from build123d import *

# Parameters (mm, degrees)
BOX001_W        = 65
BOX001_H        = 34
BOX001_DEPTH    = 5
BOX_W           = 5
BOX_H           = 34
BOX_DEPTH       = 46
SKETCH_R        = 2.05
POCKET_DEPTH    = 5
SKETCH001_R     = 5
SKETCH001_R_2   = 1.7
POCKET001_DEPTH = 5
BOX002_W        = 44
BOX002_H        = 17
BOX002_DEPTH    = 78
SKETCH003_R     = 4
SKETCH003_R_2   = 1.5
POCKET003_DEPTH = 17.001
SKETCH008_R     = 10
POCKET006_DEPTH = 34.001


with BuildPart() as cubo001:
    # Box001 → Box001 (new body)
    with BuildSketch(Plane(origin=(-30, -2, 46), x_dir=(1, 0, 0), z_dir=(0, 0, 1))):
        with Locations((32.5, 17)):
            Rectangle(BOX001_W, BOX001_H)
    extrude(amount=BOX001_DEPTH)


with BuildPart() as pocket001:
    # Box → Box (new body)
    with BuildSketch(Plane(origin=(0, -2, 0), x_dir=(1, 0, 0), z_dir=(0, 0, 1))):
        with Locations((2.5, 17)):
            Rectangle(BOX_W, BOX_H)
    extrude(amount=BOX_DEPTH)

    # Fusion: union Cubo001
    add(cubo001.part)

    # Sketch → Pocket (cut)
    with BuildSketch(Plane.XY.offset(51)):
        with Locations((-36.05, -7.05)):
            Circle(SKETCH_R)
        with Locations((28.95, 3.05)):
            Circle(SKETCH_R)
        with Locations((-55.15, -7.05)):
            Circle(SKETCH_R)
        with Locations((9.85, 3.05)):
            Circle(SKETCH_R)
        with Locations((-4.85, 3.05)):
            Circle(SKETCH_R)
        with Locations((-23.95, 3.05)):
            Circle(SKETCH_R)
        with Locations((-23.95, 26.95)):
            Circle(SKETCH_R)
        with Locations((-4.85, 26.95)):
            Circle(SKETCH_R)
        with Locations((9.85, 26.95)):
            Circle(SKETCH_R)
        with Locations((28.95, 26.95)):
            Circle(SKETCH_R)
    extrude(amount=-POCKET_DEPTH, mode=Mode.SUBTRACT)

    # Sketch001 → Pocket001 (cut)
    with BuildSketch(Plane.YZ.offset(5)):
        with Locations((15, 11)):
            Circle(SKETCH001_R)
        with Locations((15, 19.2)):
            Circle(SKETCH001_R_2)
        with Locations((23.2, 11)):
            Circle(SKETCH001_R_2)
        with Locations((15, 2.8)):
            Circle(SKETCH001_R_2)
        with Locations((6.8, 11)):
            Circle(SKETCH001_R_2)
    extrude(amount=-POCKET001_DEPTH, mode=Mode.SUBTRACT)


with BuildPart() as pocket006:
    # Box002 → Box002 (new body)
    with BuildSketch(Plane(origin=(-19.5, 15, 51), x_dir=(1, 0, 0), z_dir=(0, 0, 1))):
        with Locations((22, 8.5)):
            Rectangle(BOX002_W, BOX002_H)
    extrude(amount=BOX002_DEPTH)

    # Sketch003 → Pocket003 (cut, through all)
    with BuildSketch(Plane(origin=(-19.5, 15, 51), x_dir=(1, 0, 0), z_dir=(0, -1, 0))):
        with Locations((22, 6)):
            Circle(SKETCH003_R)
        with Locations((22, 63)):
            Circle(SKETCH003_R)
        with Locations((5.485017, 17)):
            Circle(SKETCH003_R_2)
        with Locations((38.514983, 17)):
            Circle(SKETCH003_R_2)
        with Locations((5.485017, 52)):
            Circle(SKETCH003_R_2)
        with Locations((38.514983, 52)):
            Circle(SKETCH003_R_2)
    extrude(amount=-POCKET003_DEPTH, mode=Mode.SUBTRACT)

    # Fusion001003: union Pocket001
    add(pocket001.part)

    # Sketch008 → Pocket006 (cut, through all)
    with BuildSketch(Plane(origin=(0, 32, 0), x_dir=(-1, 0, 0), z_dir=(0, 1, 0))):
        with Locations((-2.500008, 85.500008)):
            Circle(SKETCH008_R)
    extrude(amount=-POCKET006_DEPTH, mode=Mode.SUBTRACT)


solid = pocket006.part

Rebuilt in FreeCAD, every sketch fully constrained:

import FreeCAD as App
import Part
import Sketcher
from FreeCAD import Vector

doc = App.newDocument("Part")
body = doc.addObject("PartDesign::Body", "Body")

# Sketch on XY plane
sketch1 = body.newObject("Sketcher::SketchObject", "Sketch")
sketch1.AttachmentSupport = (doc.getObject("XY_Plane"), [""])
sketch1.MapMode = "FlatFace"
sketch1.AttachmentOffset = App.Placement(Vector(0, 0, 46), App.Rotation())
sketch1.addGeometry(Part.LineSegment(Vector(-30, 32, 0), Vector(-30, -2, 0)), False)
sketch1.addGeometry(Part.LineSegment(Vector(-30, -2, 0), Vector(35, -2, 0)), False)
sketch1.addGeometry(Part.LineSegment(Vector(35, -2, 0), Vector(35, 32, 0)), False)
sketch1.addGeometry(Part.LineSegment(Vector(35, 32, 0), Vector(-30, 32, 0)), False)
sketch1.addConstraint(Sketcher.Constraint("Coincident", 0, 2, 1, 1))
sketch1.addConstraint(Sketcher.Constraint("Coincident", 1, 2, 2, 1))
sketch1.addConstraint(Sketcher.Constraint("Coincident", 2, 2, 3, 1))
sketch1.addConstraint(Sketcher.Constraint("Coincident", 3, 2, 0, 1))
sketch1.addConstraint(Sketcher.Constraint("Vertical", 0))
sketch1.addConstraint(Sketcher.Constraint("Horizontal", 1))
sketch1.addConstraint(Sketcher.Constraint("Vertical", 2))
sketch1.addConstraint(Sketcher.Constraint("Horizontal", 3))
sketch1.addConstraint(Sketcher.Constraint("DistanceX", 1, 1, 1, 2, 65.0))
sketch1.addConstraint(Sketcher.Constraint("DistanceY", 0, 2, 0, 1, 34.0))
sketch1.addConstraint(Sketcher.Constraint("DistanceX", 0, 2, -1, 1, 30.0))
sketch1.addConstraint(Sketcher.Constraint("DistanceY", 0, 2, -1, 1, 2.0))
pad1 = body.newObject("PartDesign::Pad", "Pad")
pad1.Profile = sketch1
pad1.Length = 5
body2 = doc.addObject("PartDesign::Body", "Body001")

# Sketch on XY plane
sketch2 = body2.newObject("Sketcher::SketchObject", "Sketch001")
sketch2.AttachmentSupport = (doc.getObject("XY_Plane001"), [""])
sketch2.MapMode = "FlatFace"
sketch2.addGeometry(Part.LineSegment(Vector(0, 32, 0), Vector(0, -2, 0)), False)
sketch2.addGeometry(Part.LineSegment(Vector(0, -2, 0), Vector(5, -2, 0)), False)
sketch2.addGeometry(Part.LineSegment(Vector(5, -2, 0), Vector(5, 32, 0)), False)
sketch2.addGeometry(Part.LineSegment(Vector(5, 32, 0), Vector(0, 32, 0)), False)
sketch2.addConstraint(Sketcher.Constraint("Coincident", 0, 2, 1, 1))
sketch2.addConstraint(Sketcher.Constraint("Coincident", 1, 2, 2, 1))
sketch2.addConstraint(Sketcher.Constraint("Coincident", 2, 2, 3, 1))
sketch2.addConstraint(Sketcher.Constraint("Coincident", 3, 2, 0, 1))
sketch2.addConstraint(Sketcher.Constraint("Vertical", 0))
sketch2.addConstraint(Sketcher.Constraint("Horizontal", 1))
sketch2.addConstraint(Sketcher.Constraint("Vertical", 2))
sketch2.addConstraint(Sketcher.Constraint("Horizontal", 3))
sketch2.addConstraint(Sketcher.Constraint("PointOnObject", 0, 2, -2))
sketch2.addConstraint(Sketcher.Constraint("DistanceX", 1, 1, 1, 2, 5.0))
sketch2.addConstraint(Sketcher.Constraint("DistanceY", 0, 2, 0, 1, 34.0))
sketch2.addConstraint(Sketcher.Constraint("DistanceY", 0, 2, -1, 1, 2.0))
pad2 = body2.newObject("PartDesign::Pad", "Pad001")
pad2.Profile = sketch2
pad2.Length = 46
doc.recompute()

boolean = body2.newObject("PartDesign::Boolean", "Boolean")
boolean.Type = "Fuse"
boolean.addObjects([body])

# Sketch on XY plane
sketch3 = body2.newObject("Sketcher::SketchObject", "Sketch002")
sketch3.AttachmentSupport = (doc.getObject("XY_Plane001"), [""])
sketch3.MapMode = "FlatFace"
sketch3.AttachmentOffset = App.Placement(Vector(0, 0, 51), App.Rotation())
sketch3.addGeometry(Part.Circle(Vector(-36, -7, 0), Vector(0, 0, 1), 2), False)
sketch3.addGeometry(Part.Circle(Vector(28.9, 3, 0), Vector(0, 0, 1), 2), False)
sketch3.addGeometry(Part.Circle(Vector(-55.1, -7, 0), Vector(0, 0, 1), 2), False)
sketch3.addGeometry(Part.Circle(Vector(9.8, 3, 0), Vector(0, 0, 1), 2), False)
sketch3.addGeometry(Part.Circle(Vector(-4.8, 3, 0), Vector(0, 0, 1), 2), False)
sketch3.addGeometry(Part.Circle(Vector(-23.9, 3, 0), Vector(0, 0, 1), 2), False)
sketch3.addGeometry(Part.Circle(Vector(-23.9, 26.9, 0), Vector(0, 0, 1), 2), False)
sketch3.addGeometry(Part.Circle(Vector(-4.8, 26.9, 0), Vector(0, 0, 1), 2), False)
sketch3.addGeometry(Part.Circle(Vector(9.8, 26.9, 0), Vector(0, 0, 1), 2), False)
sketch3.addGeometry(Part.Circle(Vector(28.9, 26.9, 0), Vector(0, 0, 1), 2), False)
sketch3.addConstraint(Sketcher.Constraint("Equal", 0, 1))
sketch3.addConstraint(Sketcher.Constraint("Equal", 1, 2))
sketch3.addConstraint(Sketcher.Constraint("Equal", 2, 3))
sketch3.addConstraint(Sketcher.Constraint("Equal", 3, 4))
sketch3.addConstraint(Sketcher.Constraint("Equal", 4, 5))
sketch3.addConstraint(Sketcher.Constraint("Equal", 5, 6))
sketch3.addConstraint(Sketcher.Constraint("Equal", 6, 7))
sketch3.addConstraint(Sketcher.Constraint("Equal", 7, 8))
sketch3.addConstraint(Sketcher.Constraint("Equal", 8, 9))
sketch3.addConstraint(Sketcher.Constraint("Horizontal", 0, 3, 2, 3))
sketch3.addConstraint(Sketcher.Constraint("Horizontal", 1, 3, 3, 3))
sketch3.addConstraint(Sketcher.Constraint("Horizontal", 3, 3, 4, 3))
sketch3.addConstraint(Sketcher.Constraint("Horizontal", 4, 3, 5, 3))
sketch3.addConstraint(Sketcher.Constraint("Horizontal", 6, 3, 7, 3))
sketch3.addConstraint(Sketcher.Constraint("Horizontal", 7, 3, 8, 3))
sketch3.addConstraint(Sketcher.Constraint("Horizontal", 8, 3, 9, 3))
sketch3.addConstraint(Sketcher.Constraint("Vertical", 5, 3, 6, 3))
sketch3.addConstraint(Sketcher.Constraint("Vertical", 4, 3, 7, 3))
sketch3.addConstraint(Sketcher.Constraint("Vertical", 3, 3, 8, 3))
sketch3.addConstraint(Sketcher.Constraint("Vertical", 1, 3, 9, 3))
sketch3.addConstraint(Sketcher.Constraint("Diameter", 0, 4.1))
sketch3.addConstraint(Sketcher.Constraint("DistanceX", 0, 3, 1, 3, 65.0))
sketch3.addConstraint(Sketcher.Constraint("DistanceX", 2, 3, 3, 3, 65.0))
sketch3.addConstraint(Sketcher.Constraint("DistanceY", 0, 3, 6, 3, 34.0))
sketch3.addConstraint(Sketcher.Constraint("DistanceY", 0, 3, 1, 3, 10.1))
sketch3.addConstraint(Sketcher.Constraint("DistanceX", 2, 3, 0, 3, 19.1))
sketch3.addConstraint(Sketcher.Constraint("DistanceX", 4, 3, 3, 3, 14.7))
sketch3.addConstraint(Sketcher.Constraint("DistanceX", 0, 3, 5, 3, 12.1))
sketch3.addConstraint(Sketcher.Constraint("DistanceX", 0, 3, -1, 1, 36.05))
sketch3.addConstraint(Sketcher.Constraint("DistanceY", 0, 3, -1, 1, 7.05))
pocket1 = body2.newObject("PartDesign::Pocket", "Pocket")
pocket1.Profile = sketch3
pocket1.Length = 5

# Sketch on YZ plane
sketch4 = body2.newObject("Sketcher::SketchObject", "Sketch003")
sketch4.AttachmentSupport = (doc.getObject("YZ_Plane001"), [""])
sketch4.MapMode = "FlatFace"
sketch4.AttachmentOffset = App.Placement(Vector(0, 0, 5), App.Rotation())
sketch4.addGeometry(Part.Circle(Vector(15, 11, 0), Vector(0, 0, 1), 5), False)
sketch4.addGeometry(Part.Circle(Vector(15, 19.2, 0), Vector(0, 0, 1), 1.7), False)
sketch4.addGeometry(Part.Circle(Vector(23.2, 11, 0), Vector(0, 0, 1), 1.7), False)
sketch4.addGeometry(Part.Circle(Vector(15, 2.8, 0), Vector(0, 0, 1), 1.7), False)
sketch4.addGeometry(Part.Circle(Vector(6.8, 11, 0), Vector(0, 0, 1), 1.7), False)
sketch4.addConstraint(Sketcher.Constraint("Equal", 1, 2))
sketch4.addConstraint(Sketcher.Constraint("Equal", 2, 3))
sketch4.addConstraint(Sketcher.Constraint("Equal", 3, 4))
sketch4.addConstraint(Sketcher.Constraint("Horizontal", 0, 3, 2, 3))
sketch4.addConstraint(Sketcher.Constraint("Horizontal", 2, 3, 4, 3))
sketch4.addConstraint(Sketcher.Constraint("Vertical", 0, 3, 1, 3))
sketch4.addConstraint(Sketcher.Constraint("Vertical", 1, 3, 3, 3))
sketch4.addConstraint(Sketcher.Constraint("Diameter", 0, 10.0))
sketch4.addConstraint(Sketcher.Constraint("Diameter", 1, 3.4))
sketch4.addConstraint(Sketcher.Constraint("DistanceX", -1, 1, 0, 3, 15.0))
sketch4.addConstraint(Sketcher.Constraint("DistanceY", -1, 1, 0, 3, 11.0))
sketch4.addConstraint(Sketcher.Constraint("DistanceY", -1, 1, 1, 3, 19.2))
sketch4.addConstraint(Sketcher.Constraint("DistanceX", -1, 1, 2, 3, 23.2))
sketch4.addConstraint(Sketcher.Constraint("DistanceY", -1, 1, 3, 3, 2.8))
sketch4.addConstraint(Sketcher.Constraint("DistanceX", -1, 1, 4, 3, 6.8))
pocket2 = body2.newObject("PartDesign::Pocket", "Pocket001")
pocket2.Profile = sketch4
pocket2.Length = 5
body3 = doc.addObject("PartDesign::Body", "Body002")

# Sketch on XY plane
sketch5 = body3.newObject("Sketcher::SketchObject", "Sketch004")
sketch5.AttachmentSupport = (doc.getObject("XY_Plane002"), [""])
sketch5.MapMode = "FlatFace"
sketch5.AttachmentOffset = App.Placement(Vector(0, 0, 51), App.Rotation())
sketch5.addGeometry(Part.LineSegment(Vector(-20, 32, 0), Vector(-20, 15, 0)), False)
sketch5.addGeometry(Part.LineSegment(Vector(-20, 15, 0), Vector(24, 15, 0)), False)
sketch5.addGeometry(Part.LineSegment(Vector(24, 15, 0), Vector(24, 32, 0)), False)
sketch5.addGeometry(Part.LineSegment(Vector(24, 32, 0), Vector(-20, 32, 0)), False)
sketch5.addConstraint(Sketcher.Constraint("Coincident", 0, 2, 1, 1))
sketch5.addConstraint(Sketcher.Constraint("Coincident", 1, 2, 2, 1))
sketch5.addConstraint(Sketcher.Constraint("Coincident", 2, 2, 3, 1))
sketch5.addConstraint(Sketcher.Constraint("Coincident", 3, 2, 0, 1))
sketch5.addConstraint(Sketcher.Constraint("Vertical", 0))
sketch5.addConstraint(Sketcher.Constraint("Horizontal", 1))
sketch5.addConstraint(Sketcher.Constraint("Vertical", 2))
sketch5.addConstraint(Sketcher.Constraint("Horizontal", 3))
sketch5.addConstraint(Sketcher.Constraint("DistanceX", 1, 1, 1, 2, 44.0))
sketch5.addConstraint(Sketcher.Constraint("DistanceY", 0, 2, 0, 1, 17.0))
sketch5.addConstraint(Sketcher.Constraint("DistanceY", -1, 1, 0, 2, 15.0))
sketch5.addConstraint(Sketcher.Constraint("DistanceX", 0, 2, -1, 1, 19.5))
pad3 = body3.newObject("PartDesign::Pad", "Pad002")
pad3.Profile = sketch5
pad3.Length = 78

# Sketch on XZ plane
sketch6 = body3.newObject("Sketcher::SketchObject", "Sketch005")
sketch6.AttachmentSupport = (doc.getObject("XZ_Plane002"), [""])
sketch6.MapMode = "FlatFace"
sketch6.AttachmentOffset = App.Placement(Vector(0, 0, -15), App.Rotation())
sketch6.addGeometry(Part.Circle(Vector(2.5, 57, 0), Vector(0, 0, 1), 4), False)
sketch6.addGeometry(Part.Circle(Vector(2.5, 114, 0), Vector(0, 0, 1), 4), False)
sketch6.addGeometry(Part.Circle(Vector(-14, 68, 0), Vector(0, 0, 1), 1.5), False)
sketch6.addGeometry(Part.Circle(Vector(19, 68, 0), Vector(0, 0, 1), 1.5), False)
sketch6.addGeometry(Part.Circle(Vector(-14, 103, 0), Vector(0, 0, 1), 1.5), False)
sketch6.addGeometry(Part.Circle(Vector(19, 103, 0), Vector(0, 0, 1), 1.5), False)
sketch6.addConstraint(Sketcher.Constraint("Equal", 0, 1))
sketch6.addConstraint(Sketcher.Constraint("Equal", 2, 3))
sketch6.addConstraint(Sketcher.Constraint("Equal", 3, 4))
sketch6.addConstraint(Sketcher.Constraint("Equal", 4, 5))
sketch6.addConstraint(Sketcher.Constraint("Horizontal", 2, 3, 3, 3))
sketch6.addConstraint(Sketcher.Constraint("Horizontal", 4, 3, 5, 3))
sketch6.addConstraint(Sketcher.Constraint("Vertical", 0, 3, 1, 3))
sketch6.addConstraint(Sketcher.Constraint("Vertical", 2, 3, 4, 3))
sketch6.addConstraint(Sketcher.Constraint("Vertical", 3, 3, 5, 3))
sketch6.addConstraint(Sketcher.Constraint("Diameter", 0, 8.0))
sketch6.addConstraint(Sketcher.Constraint("Diameter", 2, 3.0))
sketch6.addConstraint(Sketcher.Constraint("DistanceY", -1, 1, 0, 3, 57.0))
sketch6.addConstraint(Sketcher.Constraint("DistanceY", -1, 1, 1, 3, 114.0))
sketch6.addConstraint(Sketcher.Constraint("DistanceY", -1, 1, 2, 3, 68.0))
sketch6.addConstraint(Sketcher.Constraint("DistanceY", -1, 1, 4, 3, 103.0))
sketch6.addConstraint(Sketcher.Constraint("DistanceX", -1, 1, 0, 3, 2.5))
sketch6.addConstraint(Sketcher.Constraint("DistanceX", 2, 3, -1, 1, 14.014983))
sketch6.addConstraint(Sketcher.Constraint("DistanceX", -1, 1, 3, 3, 19.014983))
pocket3 = body3.newObject("PartDesign::Pocket", "Pocket002")
pocket3.Profile = sketch6
pocket3.Type = "ThroughAll"
doc.recompute()

boolean2 = body3.newObject("PartDesign::Boolean", "Boolean001")
boolean2.Type = "Fuse"
boolean2.addObjects([body2])

# Sketch on XZ plane
sketch7 = body3.newObject("Sketcher::SketchObject", "Sketch006")
sketch7.AttachmentSupport = (doc.getObject("XZ_Plane002"), [""])
sketch7.MapMode = "FlatFace"
sketch7.AttachmentOffset = App.Placement(Vector(0, 0, -32), App.Rotation())
sketch7.addGeometry(Part.Circle(Vector(3, 86, 0), Vector(0, 0, 1), 10), False)
sketch7.addConstraint(Sketcher.Constraint("Diameter", 0, 20.0))
sketch7.addConstraint(Sketcher.Constraint("DistanceX", -1, 1, 0, 3, 2.500008))
sketch7.addConstraint(Sketcher.Constraint("DistanceY", -1, 1, 0, 3, 85.500008))
pocket4 = body3.newObject("PartDesign::Pocket", "Pocket003")
pocket4.Profile = sketch7
pocket4.Type = "ThroughAll"
pocket4.Reversed = True

doc.recompute()
